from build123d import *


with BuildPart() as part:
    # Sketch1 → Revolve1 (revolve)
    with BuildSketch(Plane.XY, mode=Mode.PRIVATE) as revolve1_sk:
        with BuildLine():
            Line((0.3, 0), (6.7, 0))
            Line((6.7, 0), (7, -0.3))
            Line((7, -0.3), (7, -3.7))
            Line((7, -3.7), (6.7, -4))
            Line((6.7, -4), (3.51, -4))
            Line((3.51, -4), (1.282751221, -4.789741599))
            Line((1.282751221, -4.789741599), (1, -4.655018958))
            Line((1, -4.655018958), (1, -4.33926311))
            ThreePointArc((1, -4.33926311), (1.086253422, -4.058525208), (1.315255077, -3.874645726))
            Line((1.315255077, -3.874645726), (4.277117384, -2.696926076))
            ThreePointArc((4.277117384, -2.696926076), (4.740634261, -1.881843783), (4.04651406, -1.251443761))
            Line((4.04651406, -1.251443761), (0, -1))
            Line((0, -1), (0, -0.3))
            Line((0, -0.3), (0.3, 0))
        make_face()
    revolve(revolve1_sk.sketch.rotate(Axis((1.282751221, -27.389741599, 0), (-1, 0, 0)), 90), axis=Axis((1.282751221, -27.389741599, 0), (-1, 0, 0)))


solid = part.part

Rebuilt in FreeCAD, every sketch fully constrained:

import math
import FreeCAD as App
import Part
import Sketcher

V = App.Vector
Q = App.Units.Quantity

doc = App.newDocument("Part")
body = doc.addObject("PartDesign::Body", "Body")

# Sketch on XY plane
sketch1 = body.newObject("Sketcher::SketchObject", "Sketch")
sketch1.AttachmentSupport = (doc.getObject("XY_Plane"), [""])
sketch1.MapMode = "FlatFace"
sketch1.addGeometry([
    Part.LineSegment(V(6.7, 0, 0), V(0.3, 0, 0)),  # 0
    Part.LineSegment(V(0.3, 0, 0), V(0, -0.3, 0)),  # 1
    Part.LineSegment(V(0, -0.3, 0), V(0, -1, 0)),  # 2
    Part.LineSegment(V(0, -1, 0), V(4.05, -1.25, 0)),  # 3
    Part.ArcOfCircle(Part.Circle(V(4, -2, 0), V(0, 0, 1), 0.75), math.radians(-68), math.radians(86)),  # 4
    Part.LineSegment(V(4.28, -2.7, 0), V(1.32, -3.87, 0)),  # 5
    Part.ArcOfCircle(Part.Circle(V(1.5, -4.34, 0), V(0, 0, 1), 0.5), math.radians(112), math.radians(180)),  # 6
    Part.LineSegment(V(1, -4.34, 0), V(1, -4.66, 0)),  # 7
    Part.LineSegment(V(1, -4.66, 0), V(1.28, -4.79, 0)),  # 8
    Part.LineSegment(V(1.28, -4.79, 0), V(3.51, -4, 0)),  # 9
    Part.LineSegment(V(3.51, -4, 0), V(6.7, -4, 0)),  # 10
    Part.LineSegment(V(6.7, -4, 0), V(7, -3.7, 0)),  # 11
    Part.LineSegment(V(7, -3.7, 0), V(7, -0.3, 0)),  # 12
    Part.LineSegment(V(7, -0.3, 0), V(6.7, 0, 0)),  # 13
], False)
sketch1.addGeometry(Part.LineSegment(V(7, -27.39, 0), V(0, -27.39, 0)), True)  # axis
sketch1.addConstraint([
    Sketcher.Constraint("Coincident", 0, 2, 1, 1),
    Sketcher.Constraint("Coincident", 1, 2, 2, 1),
    Sketcher.Constraint("Coincident", 2, 2, 3, 1),
    Sketcher.Constraint("Tangent", 3, 2, 4, 2),
    Sketcher.Constraint("Tangent", 4, 1, 5, 1),
    Sketcher.Constraint("Tangent", 5, 2, 6, 1),
    Sketcher.Constraint("Tangent", 6, 2, 7, 1),
    Sketcher.Constraint("Coincident", 7, 2, 8, 1),
    Sketcher.Constraint("Coincident", 8, 2, 9, 1),
    Sketcher.Constraint("Coincident", 9, 2, 10, 1),
    Sketcher.Constraint("Coincident", 10, 2, 11, 1),
    Sketcher.Constraint("Coincident", 11, 2, 12, 1),
    Sketcher.Constraint("Coincident", 12, 2, 13, 1),
    Sketcher.Constraint("Coincident", 13, 2, 0, 1),
    Sketcher.Constraint("Horizontal", 0),
    Sketcher.Constraint("Vertical", 2),
    Sketcher.Constraint("Vertical", 7),
    Sketcher.Constraint("Horizontal", 10),
    Sketcher.Constraint("Vertical", 12),
    Sketcher.Constraint("Horizontal", 14),
    Sketcher.Constraint("PointOnObject", 0, 2, -1),
    Sketcher.Constraint("PointOnObject", 1, 2, -2),
    Sketcher.Constraint("PointOnObject", 14, 2, -2),
    Sketcher.Constraint("Parallel", 1, 11),
    Sketcher.Constraint("Perpendicular", 11, 13),
    Sketcher.Constraint("Horizontal", 1, 2, 12, 2),
    Sketcher.Constraint("Vertical", 10, 2, 13, 2),
    Sketcher.Constraint("Vertical", 12, 2, 14, 1),
    Sketcher.Constraint("Equal", 1, 11),
    Sketcher.Constraint("Radius", 6, Q("0.5 mm")),
    Sketcher.Constraint("DistanceX", 14, 2, 14, 1, Q("7 mm")),
    Sketcher.Constraint("Radius", 4, Q("0.75 mm")),
    Sketcher.Constraint("DistanceX", 0, 2, 0, 1, Q("6.4 mm")),
    Sketcher.Constraint("DistanceY", 2, 2, 2, 1, Q("0.7 mm")),
    Sketcher.Constraint("DistanceY", 12, 1, 12, 2, Q("3.4 mm")),
    Sketcher.Constraint("DistanceX", -1, 1, 4, 3, Q("4 mm")),
    Sketcher.Constraint("DistanceY", 4, 3, -1, 1, Q("2 mm")),
    Sketcher.Constraint("DistanceX", -1, 1, 6, 2, Q("1 mm")),
    Sketcher.Constraint("DistanceX", 10, 1, 10, 2, Q("3.19 mm")),
    Sketcher.Constraint("DistanceY", 14, 1, 8, 2, Q("22.6 mm")),
    Sketcher.Constraint("DistanceY", 5, 2, 3, 2, Q("2.623202 mm")),
    Sketcher.Constraint("Distance", 9, Q("2.363118 mm")),
    Sketcher.Constraint("DistanceY", 7, 2, 7, 1, Q("0.315756 mm")),
    Sketcher.Constraint("DistanceX", -1, 1, 8, 2, Q("1.282751 mm")),
])
revolution = body.newObject("PartDesign::Revolution", "Revolution")
revolution.Profile = sketch1
revolution.ReferenceAxis = (sketch1, ["Axis0"])
revolution.Angle = 360

doc.recompute()
